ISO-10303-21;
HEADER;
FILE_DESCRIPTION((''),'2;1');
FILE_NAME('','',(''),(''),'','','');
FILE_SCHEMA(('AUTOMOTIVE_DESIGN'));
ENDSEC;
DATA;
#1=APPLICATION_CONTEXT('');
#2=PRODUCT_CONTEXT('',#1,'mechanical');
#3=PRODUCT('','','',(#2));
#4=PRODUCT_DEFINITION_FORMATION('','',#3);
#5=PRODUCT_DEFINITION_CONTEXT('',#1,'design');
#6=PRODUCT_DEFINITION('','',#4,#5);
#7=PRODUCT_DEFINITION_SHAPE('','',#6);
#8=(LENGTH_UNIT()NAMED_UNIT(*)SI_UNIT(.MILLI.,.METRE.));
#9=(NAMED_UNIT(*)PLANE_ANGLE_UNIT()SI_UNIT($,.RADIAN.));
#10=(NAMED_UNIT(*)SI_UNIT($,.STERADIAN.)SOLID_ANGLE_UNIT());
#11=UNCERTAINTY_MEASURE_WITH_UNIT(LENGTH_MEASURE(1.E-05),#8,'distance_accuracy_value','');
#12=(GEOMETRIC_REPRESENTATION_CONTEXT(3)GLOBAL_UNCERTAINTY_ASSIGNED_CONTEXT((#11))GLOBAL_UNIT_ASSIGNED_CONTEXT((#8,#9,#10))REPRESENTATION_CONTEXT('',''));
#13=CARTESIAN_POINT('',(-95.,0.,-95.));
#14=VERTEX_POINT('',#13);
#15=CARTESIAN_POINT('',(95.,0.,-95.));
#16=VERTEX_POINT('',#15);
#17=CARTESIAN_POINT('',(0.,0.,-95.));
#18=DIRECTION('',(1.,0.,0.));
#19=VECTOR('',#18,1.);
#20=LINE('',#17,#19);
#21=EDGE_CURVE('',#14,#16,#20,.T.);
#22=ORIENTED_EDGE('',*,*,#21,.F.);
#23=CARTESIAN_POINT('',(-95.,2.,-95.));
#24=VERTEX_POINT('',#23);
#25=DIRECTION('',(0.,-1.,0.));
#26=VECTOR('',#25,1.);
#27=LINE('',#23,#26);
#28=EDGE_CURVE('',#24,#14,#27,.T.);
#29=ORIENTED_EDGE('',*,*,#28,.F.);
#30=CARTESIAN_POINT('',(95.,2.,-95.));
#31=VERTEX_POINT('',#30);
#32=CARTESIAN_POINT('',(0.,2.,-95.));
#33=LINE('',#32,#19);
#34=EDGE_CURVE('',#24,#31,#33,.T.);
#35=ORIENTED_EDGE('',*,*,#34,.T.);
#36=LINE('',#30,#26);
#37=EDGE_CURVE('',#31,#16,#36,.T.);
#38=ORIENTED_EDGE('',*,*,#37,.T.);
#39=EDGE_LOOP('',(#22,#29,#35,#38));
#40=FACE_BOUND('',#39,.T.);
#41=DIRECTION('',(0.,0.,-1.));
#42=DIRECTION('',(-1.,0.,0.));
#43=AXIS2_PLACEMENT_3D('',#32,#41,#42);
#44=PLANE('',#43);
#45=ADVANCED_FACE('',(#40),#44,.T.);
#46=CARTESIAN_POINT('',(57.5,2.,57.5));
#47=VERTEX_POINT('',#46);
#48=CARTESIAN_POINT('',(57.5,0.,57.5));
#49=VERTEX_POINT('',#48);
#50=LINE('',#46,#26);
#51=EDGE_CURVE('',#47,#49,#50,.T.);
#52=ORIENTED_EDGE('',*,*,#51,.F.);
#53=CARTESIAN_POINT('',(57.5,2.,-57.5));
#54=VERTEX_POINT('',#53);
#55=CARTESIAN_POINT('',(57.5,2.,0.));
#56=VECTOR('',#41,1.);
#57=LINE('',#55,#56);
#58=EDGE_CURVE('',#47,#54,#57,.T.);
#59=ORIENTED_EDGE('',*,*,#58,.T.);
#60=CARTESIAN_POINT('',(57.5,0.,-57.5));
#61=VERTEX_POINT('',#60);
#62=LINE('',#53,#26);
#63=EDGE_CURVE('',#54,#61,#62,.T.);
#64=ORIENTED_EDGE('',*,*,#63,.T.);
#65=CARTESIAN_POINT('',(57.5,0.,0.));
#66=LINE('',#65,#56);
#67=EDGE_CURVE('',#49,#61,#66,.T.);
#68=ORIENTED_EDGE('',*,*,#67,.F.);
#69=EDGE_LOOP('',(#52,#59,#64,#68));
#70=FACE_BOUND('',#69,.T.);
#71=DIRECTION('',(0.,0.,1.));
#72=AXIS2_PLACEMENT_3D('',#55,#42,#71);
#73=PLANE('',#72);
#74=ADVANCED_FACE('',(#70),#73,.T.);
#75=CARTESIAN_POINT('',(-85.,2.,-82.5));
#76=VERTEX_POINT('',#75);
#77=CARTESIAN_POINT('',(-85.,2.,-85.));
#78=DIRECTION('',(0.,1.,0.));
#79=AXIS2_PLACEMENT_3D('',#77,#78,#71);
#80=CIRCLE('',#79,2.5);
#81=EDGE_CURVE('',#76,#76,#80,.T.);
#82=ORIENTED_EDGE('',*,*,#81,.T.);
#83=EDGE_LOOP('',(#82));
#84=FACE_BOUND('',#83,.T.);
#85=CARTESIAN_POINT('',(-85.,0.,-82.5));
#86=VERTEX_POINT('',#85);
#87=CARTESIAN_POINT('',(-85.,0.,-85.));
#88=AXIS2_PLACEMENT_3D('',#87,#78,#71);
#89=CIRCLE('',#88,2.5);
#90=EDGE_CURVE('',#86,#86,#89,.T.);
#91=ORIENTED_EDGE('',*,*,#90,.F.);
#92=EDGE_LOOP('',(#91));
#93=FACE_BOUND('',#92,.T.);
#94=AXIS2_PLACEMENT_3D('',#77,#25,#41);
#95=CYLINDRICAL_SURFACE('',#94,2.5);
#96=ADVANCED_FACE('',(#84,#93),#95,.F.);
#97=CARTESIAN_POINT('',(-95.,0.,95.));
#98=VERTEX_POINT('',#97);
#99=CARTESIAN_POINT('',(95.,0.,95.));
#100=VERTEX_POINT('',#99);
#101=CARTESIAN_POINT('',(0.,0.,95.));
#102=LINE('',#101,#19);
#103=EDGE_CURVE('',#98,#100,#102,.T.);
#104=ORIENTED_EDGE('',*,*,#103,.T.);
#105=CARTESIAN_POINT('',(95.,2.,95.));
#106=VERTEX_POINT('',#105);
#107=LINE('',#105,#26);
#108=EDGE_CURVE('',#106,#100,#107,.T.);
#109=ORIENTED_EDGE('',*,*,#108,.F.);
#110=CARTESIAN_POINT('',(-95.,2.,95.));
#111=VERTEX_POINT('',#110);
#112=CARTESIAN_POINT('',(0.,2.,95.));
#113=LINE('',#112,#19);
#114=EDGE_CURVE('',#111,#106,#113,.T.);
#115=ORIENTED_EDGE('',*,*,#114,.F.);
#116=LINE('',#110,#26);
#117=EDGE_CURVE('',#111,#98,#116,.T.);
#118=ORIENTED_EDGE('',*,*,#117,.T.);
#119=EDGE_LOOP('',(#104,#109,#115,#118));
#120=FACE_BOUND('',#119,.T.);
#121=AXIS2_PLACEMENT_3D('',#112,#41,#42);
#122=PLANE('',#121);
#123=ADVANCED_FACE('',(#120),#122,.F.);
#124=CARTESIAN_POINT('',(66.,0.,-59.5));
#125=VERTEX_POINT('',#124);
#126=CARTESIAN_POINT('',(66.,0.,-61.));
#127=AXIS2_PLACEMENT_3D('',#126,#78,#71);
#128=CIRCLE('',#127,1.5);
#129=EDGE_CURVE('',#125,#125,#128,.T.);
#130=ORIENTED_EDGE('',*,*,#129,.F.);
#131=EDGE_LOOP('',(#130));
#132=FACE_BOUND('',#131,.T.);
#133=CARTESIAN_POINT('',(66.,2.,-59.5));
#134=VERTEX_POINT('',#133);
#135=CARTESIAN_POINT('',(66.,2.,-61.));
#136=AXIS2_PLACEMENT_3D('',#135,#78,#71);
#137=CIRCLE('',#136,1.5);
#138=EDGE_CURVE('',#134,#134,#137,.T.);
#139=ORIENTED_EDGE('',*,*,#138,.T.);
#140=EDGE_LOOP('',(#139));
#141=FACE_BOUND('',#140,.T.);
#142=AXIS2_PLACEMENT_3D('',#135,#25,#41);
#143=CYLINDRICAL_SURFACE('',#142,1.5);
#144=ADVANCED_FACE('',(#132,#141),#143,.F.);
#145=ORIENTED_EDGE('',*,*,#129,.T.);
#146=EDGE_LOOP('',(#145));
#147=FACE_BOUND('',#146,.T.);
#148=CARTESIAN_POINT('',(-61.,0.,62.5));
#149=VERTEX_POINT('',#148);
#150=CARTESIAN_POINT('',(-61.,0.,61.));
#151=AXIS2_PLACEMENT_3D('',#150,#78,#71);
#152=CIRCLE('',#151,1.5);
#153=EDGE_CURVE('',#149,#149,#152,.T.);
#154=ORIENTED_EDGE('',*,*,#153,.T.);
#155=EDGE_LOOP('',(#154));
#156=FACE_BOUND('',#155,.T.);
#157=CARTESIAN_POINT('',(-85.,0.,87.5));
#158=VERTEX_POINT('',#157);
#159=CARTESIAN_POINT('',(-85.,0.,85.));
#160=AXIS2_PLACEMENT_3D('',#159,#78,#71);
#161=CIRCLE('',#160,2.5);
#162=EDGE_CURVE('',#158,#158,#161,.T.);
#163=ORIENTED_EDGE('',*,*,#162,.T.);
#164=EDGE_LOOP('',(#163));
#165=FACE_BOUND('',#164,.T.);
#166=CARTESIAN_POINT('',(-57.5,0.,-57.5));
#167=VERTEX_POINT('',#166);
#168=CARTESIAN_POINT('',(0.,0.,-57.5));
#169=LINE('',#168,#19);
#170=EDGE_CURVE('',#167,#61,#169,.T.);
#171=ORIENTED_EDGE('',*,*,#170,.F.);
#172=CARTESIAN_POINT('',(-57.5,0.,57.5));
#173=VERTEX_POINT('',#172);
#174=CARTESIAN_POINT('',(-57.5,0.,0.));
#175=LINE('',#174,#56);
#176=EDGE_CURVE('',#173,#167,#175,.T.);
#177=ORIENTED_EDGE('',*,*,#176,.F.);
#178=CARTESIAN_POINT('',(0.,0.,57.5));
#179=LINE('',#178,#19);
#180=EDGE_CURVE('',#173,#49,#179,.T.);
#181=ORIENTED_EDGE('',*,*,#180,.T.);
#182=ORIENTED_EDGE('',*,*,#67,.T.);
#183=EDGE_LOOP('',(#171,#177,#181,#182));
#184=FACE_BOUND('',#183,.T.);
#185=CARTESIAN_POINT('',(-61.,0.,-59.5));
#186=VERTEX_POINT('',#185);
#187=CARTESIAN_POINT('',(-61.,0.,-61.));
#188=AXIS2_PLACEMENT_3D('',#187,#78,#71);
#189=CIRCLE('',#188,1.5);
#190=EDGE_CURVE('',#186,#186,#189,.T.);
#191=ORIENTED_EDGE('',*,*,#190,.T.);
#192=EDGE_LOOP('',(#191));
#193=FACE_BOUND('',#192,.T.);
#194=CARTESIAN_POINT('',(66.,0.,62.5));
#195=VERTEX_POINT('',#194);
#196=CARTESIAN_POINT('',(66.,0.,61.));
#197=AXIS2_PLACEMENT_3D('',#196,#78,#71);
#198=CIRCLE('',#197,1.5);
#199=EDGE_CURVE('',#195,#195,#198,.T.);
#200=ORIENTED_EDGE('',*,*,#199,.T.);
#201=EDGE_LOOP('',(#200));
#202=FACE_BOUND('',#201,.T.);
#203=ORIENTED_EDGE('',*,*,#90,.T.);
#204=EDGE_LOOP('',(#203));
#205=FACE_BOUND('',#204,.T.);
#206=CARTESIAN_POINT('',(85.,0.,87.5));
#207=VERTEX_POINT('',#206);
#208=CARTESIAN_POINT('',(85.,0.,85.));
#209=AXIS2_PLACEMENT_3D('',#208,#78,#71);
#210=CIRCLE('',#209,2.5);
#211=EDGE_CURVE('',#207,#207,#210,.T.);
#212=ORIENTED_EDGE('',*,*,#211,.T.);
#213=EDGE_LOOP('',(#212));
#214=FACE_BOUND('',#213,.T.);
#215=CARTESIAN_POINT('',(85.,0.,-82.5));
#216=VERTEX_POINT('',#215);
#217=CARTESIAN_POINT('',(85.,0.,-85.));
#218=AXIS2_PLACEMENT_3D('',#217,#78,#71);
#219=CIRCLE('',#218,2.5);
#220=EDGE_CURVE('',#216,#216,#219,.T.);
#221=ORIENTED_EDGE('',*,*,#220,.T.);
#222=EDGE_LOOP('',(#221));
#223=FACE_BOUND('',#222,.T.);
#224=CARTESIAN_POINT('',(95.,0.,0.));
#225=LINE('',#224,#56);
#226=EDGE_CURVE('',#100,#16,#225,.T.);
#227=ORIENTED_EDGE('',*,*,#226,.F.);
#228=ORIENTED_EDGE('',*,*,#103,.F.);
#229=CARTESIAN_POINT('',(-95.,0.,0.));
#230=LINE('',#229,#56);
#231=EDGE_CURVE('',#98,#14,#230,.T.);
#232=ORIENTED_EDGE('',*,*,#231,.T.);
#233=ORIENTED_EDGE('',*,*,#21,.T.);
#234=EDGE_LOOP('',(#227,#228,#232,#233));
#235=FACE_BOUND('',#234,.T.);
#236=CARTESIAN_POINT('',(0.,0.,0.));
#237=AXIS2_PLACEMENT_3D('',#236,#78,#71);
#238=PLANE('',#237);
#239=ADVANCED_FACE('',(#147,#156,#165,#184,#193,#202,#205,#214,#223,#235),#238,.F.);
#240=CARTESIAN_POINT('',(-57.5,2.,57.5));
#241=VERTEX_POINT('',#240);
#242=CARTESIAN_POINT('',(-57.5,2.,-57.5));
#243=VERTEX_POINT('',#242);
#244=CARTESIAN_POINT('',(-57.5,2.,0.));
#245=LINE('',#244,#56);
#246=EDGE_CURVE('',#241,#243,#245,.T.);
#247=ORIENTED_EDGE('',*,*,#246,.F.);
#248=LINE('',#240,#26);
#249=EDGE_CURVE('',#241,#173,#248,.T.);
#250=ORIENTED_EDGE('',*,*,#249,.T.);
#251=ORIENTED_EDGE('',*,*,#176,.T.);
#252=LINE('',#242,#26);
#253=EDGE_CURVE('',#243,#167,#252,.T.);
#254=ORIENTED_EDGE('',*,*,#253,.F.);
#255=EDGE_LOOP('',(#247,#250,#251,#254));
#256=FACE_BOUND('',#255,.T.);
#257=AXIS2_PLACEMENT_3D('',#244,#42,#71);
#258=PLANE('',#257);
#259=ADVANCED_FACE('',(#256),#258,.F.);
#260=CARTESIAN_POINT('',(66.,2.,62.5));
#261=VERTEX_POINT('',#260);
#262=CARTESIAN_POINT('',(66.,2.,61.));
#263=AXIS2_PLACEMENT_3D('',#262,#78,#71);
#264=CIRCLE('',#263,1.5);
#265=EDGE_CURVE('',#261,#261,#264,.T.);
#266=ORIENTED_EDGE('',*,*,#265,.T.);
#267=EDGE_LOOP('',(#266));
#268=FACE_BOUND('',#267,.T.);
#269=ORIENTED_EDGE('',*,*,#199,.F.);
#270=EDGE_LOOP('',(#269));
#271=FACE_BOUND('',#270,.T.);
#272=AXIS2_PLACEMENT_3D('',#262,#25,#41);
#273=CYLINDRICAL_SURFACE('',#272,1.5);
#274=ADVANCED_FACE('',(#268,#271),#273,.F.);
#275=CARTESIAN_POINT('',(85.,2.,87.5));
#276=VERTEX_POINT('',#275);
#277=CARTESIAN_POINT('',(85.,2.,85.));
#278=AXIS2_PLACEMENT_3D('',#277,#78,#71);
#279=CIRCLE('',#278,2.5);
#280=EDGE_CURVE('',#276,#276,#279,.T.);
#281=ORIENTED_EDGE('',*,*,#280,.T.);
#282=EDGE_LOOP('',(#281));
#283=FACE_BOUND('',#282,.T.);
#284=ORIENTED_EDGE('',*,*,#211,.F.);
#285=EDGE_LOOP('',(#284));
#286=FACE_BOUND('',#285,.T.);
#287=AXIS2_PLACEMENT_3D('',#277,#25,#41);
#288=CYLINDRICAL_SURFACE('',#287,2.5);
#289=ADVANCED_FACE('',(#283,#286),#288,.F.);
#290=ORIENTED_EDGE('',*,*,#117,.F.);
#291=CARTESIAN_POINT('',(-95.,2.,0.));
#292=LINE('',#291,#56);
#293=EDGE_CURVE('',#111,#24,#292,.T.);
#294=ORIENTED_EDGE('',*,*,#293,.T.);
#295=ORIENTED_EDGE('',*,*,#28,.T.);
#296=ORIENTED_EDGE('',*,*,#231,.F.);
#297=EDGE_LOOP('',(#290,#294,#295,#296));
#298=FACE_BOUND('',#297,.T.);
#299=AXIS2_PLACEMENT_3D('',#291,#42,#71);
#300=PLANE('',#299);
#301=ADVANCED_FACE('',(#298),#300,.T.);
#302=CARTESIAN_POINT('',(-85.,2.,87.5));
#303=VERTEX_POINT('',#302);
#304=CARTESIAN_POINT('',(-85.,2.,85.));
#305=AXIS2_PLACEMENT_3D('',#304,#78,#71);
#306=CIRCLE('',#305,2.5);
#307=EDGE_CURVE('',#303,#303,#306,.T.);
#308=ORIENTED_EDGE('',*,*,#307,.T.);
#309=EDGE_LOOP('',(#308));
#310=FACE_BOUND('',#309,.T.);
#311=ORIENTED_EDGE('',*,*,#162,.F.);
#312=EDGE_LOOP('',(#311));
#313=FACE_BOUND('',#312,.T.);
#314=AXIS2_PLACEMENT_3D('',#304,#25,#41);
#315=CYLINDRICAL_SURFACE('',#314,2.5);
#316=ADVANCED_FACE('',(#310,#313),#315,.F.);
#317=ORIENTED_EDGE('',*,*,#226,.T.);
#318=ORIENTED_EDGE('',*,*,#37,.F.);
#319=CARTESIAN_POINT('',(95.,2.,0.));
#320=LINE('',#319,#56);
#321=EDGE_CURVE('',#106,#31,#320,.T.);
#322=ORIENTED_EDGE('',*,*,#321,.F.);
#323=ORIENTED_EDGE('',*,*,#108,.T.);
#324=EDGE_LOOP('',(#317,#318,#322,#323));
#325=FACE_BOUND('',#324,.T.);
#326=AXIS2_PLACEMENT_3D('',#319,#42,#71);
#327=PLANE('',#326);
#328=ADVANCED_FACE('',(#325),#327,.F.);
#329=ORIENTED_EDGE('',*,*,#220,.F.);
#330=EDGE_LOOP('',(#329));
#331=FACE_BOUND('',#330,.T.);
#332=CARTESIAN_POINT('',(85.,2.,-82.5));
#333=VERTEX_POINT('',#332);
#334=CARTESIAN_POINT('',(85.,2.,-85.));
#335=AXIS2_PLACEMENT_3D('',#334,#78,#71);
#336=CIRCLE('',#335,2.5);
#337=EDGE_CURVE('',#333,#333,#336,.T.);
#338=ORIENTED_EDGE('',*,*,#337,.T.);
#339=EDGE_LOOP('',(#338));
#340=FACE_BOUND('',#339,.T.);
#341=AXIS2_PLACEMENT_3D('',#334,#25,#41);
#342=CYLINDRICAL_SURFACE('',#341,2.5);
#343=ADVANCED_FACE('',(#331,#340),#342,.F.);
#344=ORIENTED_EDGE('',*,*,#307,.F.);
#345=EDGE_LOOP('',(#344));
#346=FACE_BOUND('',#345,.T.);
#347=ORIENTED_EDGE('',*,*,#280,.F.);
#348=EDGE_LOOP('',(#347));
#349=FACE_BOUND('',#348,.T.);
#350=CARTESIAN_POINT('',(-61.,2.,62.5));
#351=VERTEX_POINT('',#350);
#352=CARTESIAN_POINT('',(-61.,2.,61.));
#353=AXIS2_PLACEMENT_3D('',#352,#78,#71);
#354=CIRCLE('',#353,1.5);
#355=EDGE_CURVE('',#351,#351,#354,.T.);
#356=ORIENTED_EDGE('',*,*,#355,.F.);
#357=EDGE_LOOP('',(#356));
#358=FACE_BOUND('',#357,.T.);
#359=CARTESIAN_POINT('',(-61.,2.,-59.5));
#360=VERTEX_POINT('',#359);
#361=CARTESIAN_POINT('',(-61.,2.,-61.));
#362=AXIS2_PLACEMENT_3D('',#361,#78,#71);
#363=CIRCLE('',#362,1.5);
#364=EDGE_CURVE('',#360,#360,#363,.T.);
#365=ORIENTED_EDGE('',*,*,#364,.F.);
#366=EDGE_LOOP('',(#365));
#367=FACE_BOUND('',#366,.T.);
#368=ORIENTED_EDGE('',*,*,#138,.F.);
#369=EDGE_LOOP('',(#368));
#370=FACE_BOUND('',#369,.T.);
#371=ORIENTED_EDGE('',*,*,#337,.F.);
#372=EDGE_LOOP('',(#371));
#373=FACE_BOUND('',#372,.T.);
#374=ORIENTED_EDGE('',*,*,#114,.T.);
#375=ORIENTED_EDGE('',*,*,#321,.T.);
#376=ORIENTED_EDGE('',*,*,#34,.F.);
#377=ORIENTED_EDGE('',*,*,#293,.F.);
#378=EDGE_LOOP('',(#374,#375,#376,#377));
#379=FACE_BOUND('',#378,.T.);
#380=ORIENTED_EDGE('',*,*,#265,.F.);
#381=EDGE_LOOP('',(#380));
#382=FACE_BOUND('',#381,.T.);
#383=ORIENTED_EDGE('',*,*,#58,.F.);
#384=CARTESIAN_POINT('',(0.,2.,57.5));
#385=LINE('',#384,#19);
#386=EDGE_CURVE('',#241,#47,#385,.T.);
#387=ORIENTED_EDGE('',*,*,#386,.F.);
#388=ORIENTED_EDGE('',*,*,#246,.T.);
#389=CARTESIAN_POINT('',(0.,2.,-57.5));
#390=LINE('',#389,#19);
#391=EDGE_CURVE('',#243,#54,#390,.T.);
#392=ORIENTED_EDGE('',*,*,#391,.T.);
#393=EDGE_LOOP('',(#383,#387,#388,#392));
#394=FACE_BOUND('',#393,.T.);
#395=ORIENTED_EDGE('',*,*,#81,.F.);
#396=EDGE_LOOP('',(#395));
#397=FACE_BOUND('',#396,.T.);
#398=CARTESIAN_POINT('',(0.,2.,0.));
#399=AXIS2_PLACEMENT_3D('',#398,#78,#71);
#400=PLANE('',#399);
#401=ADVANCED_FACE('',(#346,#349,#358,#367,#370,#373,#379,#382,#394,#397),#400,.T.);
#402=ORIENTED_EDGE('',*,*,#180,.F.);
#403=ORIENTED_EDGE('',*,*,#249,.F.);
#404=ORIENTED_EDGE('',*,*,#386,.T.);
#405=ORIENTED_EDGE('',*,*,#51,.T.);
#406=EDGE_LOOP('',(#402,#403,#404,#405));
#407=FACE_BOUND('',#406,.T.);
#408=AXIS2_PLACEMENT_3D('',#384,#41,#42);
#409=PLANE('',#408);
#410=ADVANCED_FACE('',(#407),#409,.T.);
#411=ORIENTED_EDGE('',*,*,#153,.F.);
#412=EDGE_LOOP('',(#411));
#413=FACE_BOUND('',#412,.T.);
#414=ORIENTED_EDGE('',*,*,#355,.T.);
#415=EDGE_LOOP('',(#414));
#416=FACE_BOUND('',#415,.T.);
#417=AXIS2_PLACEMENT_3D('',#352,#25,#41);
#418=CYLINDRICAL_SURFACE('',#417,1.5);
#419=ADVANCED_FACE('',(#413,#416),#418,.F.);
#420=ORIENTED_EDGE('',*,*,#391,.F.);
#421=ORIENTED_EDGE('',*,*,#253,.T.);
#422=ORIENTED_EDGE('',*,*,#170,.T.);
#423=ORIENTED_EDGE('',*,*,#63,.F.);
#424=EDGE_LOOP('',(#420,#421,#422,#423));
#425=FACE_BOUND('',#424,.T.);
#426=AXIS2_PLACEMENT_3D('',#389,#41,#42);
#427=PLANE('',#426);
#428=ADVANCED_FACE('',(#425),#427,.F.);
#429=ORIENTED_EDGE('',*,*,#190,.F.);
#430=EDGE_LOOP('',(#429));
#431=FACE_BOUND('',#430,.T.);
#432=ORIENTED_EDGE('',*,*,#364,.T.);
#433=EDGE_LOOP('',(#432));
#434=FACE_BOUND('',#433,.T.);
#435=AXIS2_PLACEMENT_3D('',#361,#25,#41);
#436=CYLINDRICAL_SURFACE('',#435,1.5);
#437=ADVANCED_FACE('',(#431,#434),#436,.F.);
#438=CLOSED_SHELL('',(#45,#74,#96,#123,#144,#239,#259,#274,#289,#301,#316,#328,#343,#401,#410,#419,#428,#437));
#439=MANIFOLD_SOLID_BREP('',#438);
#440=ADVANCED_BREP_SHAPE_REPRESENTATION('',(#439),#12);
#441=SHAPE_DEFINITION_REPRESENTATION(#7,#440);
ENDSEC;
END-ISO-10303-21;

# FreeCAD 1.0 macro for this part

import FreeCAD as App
import Part
import Sketcher
from FreeCAD import Vector

doc = App.newDocument("Part")
body = doc.addObject("PartDesign::Body", "Body")

sketch1 = doc.addObject("Sketcher::SketchObject", "Sketch")
body.addObject(sketch1)
sketch1.AttachmentSupport = (doc.XZ_Plane, [""])
sketch1.MapMode = "FlatFace"
sketch1.addGeometry([
    Part.LineSegment(Vector(-95, -95, 0), Vector(-95, 95, 0)),
    Part.LineSegment(Vector(-95, 95, 0), Vector(95, 95, 0)),
    Part.LineSegment(Vector(95, 95, 0), Vector(95, -95, 0)),
    Part.LineSegment(Vector(95, -95, 0), Vector(-95, -95, 0)),
    Part.Circle(Vector(-85, 85, 0), Vector(0, 0, 1), 2.5),
    Part.Circle(Vector(-61, 61, 0), Vector(0, 0, 1), 1.5),
    Part.Circle(Vector(85, 85, 0), Vector(0, 0, 1), 2.5),
    Part.Circle(Vector(66, 61, 0), Vector(0, 0, 1), 1.5),
    Part.Circle(Vector(-61, -61, 0), Vector(0, 0, 1), 1.5),
    Part.Circle(Vector(-85, -85, 0), Vector(0, 0, 1), 2.5),
    Part.LineSegment(Vector(57.5, 57.5, 0), Vector(-57.5, 57.5, 0)),
    Part.LineSegment(Vector(-57.5, 57.5, 0), Vector(-57.5, -57.5, 0)),
    Part.LineSegment(Vector(-57.5, -57.5, 0), Vector(57.5, -57.5, 0)),
    Part.LineSegment(Vector(57.5, -57.5, 0), Vector(57.5, 57.5, 0)),
    Part.Circle(Vector(66, -61, 0), Vector(0, 0, 1), 1.5),
    Part.Circle(Vector(85, -85, 0), Vector(0, 0, 1), 2.5),
], False)
sketch1.addConstraint([
    Sketcher.Constraint("Coincident", 0, 2, 1, 1),
    Sketcher.Constraint("Coincident", 1, 2, 2, 1),
    Sketcher.Constraint("Coincident", 2, 2, 3, 1),
    Sketcher.Constraint("Coincident", 3, 2, 0, 1),
    Sketcher.Constraint("Coincident", 10, 2, 11, 1),
    Sketcher.Constraint("Coincident", 11, 2, 12, 1),
    Sketcher.Constraint("Coincident", 12, 2, 13, 1),
    Sketcher.Constraint("Coincident", 13, 2, 10, 1),
    Sketcher.Constraint("Vertical", 0),
    Sketcher.Constraint("Horizontal", 1),
    Sketcher.Constraint("Vertical", 2),
    Sketcher.Constraint("Horizontal", 3),
    Sketcher.Constraint("Horizontal", 10),
    Sketcher.Constraint("Vertical", 11),
    Sketcher.Constraint("Horizontal", 12),
    Sketcher.Constraint("Vertical", 13),
    Sketcher.Constraint("Equal", 4, 6),
    Sketcher.Constraint("Equal", 5, 7),
    Sketcher.Constraint("Equal", 7, 8),
    Sketcher.Constraint("Equal", 6, 9),
    Sketcher.Constraint("Equal", 8, 14),
    Sketcher.Constraint("Equal", 9, 15),
    Sketcher.Constraint("Symmetric", 6, 3, 9, 3, -1, 1),
    Sketcher.Constraint("Symmetric", 4, 3, 15, 3, -1, 1),
    Sketcher.Constraint("Symmetric", 0, 2, 2, 2, -1, 1),
    Sketcher.Constraint("Symmetric", 10, 2, 12, 2, -1, 1),
    Sketcher.Constraint("Symmetric", 4, 3, 6, 3, -2),
    Sketcher.Constraint("Symmetric", 5, 3, 8, 3, -1),
    Sketcher.Constraint("Symmetric", 7, 3, 14, 3, -1),
    Sketcher.Constraint("Horizontal", 5, 3, 7, 3),
    Sketcher.Constraint("Equal", 3, 0),
    Sketcher.Constraint("Equal", 12, 11),
    Sketcher.Constraint("Diameter", 4, 5.0),
    Sketcher.Constraint("Diameter", 5, 3.0),
    Sketcher.Constraint("DistanceX", 1, 1, 1, 2, 190.0),
    Sketcher.Constraint("DistanceX", 10, 2, 10, 1, 115.0),
    Sketcher.Constraint("DistanceX", 4, 3, -1, 1, 85.0),
    Sketcher.Constraint("DistanceY", -1, 1, 4, 3, 85.0),
    Sketcher.Constraint("DistanceX", 5, 3, -1, 1, 61.0),
    Sketcher.Constraint("DistanceY", -1, 1, 5, 3, 61.0),
    Sketcher.Constraint("DistanceX", -1, 1, 7, 3, 66.0),
])
pad1 = doc.addObject("PartDesign::Pad", "Pad")
body.addObject(pad1)
pad1.Profile = sketch1
pad1.Length = 2
pad1.Reversed = True

doc.recompute()
